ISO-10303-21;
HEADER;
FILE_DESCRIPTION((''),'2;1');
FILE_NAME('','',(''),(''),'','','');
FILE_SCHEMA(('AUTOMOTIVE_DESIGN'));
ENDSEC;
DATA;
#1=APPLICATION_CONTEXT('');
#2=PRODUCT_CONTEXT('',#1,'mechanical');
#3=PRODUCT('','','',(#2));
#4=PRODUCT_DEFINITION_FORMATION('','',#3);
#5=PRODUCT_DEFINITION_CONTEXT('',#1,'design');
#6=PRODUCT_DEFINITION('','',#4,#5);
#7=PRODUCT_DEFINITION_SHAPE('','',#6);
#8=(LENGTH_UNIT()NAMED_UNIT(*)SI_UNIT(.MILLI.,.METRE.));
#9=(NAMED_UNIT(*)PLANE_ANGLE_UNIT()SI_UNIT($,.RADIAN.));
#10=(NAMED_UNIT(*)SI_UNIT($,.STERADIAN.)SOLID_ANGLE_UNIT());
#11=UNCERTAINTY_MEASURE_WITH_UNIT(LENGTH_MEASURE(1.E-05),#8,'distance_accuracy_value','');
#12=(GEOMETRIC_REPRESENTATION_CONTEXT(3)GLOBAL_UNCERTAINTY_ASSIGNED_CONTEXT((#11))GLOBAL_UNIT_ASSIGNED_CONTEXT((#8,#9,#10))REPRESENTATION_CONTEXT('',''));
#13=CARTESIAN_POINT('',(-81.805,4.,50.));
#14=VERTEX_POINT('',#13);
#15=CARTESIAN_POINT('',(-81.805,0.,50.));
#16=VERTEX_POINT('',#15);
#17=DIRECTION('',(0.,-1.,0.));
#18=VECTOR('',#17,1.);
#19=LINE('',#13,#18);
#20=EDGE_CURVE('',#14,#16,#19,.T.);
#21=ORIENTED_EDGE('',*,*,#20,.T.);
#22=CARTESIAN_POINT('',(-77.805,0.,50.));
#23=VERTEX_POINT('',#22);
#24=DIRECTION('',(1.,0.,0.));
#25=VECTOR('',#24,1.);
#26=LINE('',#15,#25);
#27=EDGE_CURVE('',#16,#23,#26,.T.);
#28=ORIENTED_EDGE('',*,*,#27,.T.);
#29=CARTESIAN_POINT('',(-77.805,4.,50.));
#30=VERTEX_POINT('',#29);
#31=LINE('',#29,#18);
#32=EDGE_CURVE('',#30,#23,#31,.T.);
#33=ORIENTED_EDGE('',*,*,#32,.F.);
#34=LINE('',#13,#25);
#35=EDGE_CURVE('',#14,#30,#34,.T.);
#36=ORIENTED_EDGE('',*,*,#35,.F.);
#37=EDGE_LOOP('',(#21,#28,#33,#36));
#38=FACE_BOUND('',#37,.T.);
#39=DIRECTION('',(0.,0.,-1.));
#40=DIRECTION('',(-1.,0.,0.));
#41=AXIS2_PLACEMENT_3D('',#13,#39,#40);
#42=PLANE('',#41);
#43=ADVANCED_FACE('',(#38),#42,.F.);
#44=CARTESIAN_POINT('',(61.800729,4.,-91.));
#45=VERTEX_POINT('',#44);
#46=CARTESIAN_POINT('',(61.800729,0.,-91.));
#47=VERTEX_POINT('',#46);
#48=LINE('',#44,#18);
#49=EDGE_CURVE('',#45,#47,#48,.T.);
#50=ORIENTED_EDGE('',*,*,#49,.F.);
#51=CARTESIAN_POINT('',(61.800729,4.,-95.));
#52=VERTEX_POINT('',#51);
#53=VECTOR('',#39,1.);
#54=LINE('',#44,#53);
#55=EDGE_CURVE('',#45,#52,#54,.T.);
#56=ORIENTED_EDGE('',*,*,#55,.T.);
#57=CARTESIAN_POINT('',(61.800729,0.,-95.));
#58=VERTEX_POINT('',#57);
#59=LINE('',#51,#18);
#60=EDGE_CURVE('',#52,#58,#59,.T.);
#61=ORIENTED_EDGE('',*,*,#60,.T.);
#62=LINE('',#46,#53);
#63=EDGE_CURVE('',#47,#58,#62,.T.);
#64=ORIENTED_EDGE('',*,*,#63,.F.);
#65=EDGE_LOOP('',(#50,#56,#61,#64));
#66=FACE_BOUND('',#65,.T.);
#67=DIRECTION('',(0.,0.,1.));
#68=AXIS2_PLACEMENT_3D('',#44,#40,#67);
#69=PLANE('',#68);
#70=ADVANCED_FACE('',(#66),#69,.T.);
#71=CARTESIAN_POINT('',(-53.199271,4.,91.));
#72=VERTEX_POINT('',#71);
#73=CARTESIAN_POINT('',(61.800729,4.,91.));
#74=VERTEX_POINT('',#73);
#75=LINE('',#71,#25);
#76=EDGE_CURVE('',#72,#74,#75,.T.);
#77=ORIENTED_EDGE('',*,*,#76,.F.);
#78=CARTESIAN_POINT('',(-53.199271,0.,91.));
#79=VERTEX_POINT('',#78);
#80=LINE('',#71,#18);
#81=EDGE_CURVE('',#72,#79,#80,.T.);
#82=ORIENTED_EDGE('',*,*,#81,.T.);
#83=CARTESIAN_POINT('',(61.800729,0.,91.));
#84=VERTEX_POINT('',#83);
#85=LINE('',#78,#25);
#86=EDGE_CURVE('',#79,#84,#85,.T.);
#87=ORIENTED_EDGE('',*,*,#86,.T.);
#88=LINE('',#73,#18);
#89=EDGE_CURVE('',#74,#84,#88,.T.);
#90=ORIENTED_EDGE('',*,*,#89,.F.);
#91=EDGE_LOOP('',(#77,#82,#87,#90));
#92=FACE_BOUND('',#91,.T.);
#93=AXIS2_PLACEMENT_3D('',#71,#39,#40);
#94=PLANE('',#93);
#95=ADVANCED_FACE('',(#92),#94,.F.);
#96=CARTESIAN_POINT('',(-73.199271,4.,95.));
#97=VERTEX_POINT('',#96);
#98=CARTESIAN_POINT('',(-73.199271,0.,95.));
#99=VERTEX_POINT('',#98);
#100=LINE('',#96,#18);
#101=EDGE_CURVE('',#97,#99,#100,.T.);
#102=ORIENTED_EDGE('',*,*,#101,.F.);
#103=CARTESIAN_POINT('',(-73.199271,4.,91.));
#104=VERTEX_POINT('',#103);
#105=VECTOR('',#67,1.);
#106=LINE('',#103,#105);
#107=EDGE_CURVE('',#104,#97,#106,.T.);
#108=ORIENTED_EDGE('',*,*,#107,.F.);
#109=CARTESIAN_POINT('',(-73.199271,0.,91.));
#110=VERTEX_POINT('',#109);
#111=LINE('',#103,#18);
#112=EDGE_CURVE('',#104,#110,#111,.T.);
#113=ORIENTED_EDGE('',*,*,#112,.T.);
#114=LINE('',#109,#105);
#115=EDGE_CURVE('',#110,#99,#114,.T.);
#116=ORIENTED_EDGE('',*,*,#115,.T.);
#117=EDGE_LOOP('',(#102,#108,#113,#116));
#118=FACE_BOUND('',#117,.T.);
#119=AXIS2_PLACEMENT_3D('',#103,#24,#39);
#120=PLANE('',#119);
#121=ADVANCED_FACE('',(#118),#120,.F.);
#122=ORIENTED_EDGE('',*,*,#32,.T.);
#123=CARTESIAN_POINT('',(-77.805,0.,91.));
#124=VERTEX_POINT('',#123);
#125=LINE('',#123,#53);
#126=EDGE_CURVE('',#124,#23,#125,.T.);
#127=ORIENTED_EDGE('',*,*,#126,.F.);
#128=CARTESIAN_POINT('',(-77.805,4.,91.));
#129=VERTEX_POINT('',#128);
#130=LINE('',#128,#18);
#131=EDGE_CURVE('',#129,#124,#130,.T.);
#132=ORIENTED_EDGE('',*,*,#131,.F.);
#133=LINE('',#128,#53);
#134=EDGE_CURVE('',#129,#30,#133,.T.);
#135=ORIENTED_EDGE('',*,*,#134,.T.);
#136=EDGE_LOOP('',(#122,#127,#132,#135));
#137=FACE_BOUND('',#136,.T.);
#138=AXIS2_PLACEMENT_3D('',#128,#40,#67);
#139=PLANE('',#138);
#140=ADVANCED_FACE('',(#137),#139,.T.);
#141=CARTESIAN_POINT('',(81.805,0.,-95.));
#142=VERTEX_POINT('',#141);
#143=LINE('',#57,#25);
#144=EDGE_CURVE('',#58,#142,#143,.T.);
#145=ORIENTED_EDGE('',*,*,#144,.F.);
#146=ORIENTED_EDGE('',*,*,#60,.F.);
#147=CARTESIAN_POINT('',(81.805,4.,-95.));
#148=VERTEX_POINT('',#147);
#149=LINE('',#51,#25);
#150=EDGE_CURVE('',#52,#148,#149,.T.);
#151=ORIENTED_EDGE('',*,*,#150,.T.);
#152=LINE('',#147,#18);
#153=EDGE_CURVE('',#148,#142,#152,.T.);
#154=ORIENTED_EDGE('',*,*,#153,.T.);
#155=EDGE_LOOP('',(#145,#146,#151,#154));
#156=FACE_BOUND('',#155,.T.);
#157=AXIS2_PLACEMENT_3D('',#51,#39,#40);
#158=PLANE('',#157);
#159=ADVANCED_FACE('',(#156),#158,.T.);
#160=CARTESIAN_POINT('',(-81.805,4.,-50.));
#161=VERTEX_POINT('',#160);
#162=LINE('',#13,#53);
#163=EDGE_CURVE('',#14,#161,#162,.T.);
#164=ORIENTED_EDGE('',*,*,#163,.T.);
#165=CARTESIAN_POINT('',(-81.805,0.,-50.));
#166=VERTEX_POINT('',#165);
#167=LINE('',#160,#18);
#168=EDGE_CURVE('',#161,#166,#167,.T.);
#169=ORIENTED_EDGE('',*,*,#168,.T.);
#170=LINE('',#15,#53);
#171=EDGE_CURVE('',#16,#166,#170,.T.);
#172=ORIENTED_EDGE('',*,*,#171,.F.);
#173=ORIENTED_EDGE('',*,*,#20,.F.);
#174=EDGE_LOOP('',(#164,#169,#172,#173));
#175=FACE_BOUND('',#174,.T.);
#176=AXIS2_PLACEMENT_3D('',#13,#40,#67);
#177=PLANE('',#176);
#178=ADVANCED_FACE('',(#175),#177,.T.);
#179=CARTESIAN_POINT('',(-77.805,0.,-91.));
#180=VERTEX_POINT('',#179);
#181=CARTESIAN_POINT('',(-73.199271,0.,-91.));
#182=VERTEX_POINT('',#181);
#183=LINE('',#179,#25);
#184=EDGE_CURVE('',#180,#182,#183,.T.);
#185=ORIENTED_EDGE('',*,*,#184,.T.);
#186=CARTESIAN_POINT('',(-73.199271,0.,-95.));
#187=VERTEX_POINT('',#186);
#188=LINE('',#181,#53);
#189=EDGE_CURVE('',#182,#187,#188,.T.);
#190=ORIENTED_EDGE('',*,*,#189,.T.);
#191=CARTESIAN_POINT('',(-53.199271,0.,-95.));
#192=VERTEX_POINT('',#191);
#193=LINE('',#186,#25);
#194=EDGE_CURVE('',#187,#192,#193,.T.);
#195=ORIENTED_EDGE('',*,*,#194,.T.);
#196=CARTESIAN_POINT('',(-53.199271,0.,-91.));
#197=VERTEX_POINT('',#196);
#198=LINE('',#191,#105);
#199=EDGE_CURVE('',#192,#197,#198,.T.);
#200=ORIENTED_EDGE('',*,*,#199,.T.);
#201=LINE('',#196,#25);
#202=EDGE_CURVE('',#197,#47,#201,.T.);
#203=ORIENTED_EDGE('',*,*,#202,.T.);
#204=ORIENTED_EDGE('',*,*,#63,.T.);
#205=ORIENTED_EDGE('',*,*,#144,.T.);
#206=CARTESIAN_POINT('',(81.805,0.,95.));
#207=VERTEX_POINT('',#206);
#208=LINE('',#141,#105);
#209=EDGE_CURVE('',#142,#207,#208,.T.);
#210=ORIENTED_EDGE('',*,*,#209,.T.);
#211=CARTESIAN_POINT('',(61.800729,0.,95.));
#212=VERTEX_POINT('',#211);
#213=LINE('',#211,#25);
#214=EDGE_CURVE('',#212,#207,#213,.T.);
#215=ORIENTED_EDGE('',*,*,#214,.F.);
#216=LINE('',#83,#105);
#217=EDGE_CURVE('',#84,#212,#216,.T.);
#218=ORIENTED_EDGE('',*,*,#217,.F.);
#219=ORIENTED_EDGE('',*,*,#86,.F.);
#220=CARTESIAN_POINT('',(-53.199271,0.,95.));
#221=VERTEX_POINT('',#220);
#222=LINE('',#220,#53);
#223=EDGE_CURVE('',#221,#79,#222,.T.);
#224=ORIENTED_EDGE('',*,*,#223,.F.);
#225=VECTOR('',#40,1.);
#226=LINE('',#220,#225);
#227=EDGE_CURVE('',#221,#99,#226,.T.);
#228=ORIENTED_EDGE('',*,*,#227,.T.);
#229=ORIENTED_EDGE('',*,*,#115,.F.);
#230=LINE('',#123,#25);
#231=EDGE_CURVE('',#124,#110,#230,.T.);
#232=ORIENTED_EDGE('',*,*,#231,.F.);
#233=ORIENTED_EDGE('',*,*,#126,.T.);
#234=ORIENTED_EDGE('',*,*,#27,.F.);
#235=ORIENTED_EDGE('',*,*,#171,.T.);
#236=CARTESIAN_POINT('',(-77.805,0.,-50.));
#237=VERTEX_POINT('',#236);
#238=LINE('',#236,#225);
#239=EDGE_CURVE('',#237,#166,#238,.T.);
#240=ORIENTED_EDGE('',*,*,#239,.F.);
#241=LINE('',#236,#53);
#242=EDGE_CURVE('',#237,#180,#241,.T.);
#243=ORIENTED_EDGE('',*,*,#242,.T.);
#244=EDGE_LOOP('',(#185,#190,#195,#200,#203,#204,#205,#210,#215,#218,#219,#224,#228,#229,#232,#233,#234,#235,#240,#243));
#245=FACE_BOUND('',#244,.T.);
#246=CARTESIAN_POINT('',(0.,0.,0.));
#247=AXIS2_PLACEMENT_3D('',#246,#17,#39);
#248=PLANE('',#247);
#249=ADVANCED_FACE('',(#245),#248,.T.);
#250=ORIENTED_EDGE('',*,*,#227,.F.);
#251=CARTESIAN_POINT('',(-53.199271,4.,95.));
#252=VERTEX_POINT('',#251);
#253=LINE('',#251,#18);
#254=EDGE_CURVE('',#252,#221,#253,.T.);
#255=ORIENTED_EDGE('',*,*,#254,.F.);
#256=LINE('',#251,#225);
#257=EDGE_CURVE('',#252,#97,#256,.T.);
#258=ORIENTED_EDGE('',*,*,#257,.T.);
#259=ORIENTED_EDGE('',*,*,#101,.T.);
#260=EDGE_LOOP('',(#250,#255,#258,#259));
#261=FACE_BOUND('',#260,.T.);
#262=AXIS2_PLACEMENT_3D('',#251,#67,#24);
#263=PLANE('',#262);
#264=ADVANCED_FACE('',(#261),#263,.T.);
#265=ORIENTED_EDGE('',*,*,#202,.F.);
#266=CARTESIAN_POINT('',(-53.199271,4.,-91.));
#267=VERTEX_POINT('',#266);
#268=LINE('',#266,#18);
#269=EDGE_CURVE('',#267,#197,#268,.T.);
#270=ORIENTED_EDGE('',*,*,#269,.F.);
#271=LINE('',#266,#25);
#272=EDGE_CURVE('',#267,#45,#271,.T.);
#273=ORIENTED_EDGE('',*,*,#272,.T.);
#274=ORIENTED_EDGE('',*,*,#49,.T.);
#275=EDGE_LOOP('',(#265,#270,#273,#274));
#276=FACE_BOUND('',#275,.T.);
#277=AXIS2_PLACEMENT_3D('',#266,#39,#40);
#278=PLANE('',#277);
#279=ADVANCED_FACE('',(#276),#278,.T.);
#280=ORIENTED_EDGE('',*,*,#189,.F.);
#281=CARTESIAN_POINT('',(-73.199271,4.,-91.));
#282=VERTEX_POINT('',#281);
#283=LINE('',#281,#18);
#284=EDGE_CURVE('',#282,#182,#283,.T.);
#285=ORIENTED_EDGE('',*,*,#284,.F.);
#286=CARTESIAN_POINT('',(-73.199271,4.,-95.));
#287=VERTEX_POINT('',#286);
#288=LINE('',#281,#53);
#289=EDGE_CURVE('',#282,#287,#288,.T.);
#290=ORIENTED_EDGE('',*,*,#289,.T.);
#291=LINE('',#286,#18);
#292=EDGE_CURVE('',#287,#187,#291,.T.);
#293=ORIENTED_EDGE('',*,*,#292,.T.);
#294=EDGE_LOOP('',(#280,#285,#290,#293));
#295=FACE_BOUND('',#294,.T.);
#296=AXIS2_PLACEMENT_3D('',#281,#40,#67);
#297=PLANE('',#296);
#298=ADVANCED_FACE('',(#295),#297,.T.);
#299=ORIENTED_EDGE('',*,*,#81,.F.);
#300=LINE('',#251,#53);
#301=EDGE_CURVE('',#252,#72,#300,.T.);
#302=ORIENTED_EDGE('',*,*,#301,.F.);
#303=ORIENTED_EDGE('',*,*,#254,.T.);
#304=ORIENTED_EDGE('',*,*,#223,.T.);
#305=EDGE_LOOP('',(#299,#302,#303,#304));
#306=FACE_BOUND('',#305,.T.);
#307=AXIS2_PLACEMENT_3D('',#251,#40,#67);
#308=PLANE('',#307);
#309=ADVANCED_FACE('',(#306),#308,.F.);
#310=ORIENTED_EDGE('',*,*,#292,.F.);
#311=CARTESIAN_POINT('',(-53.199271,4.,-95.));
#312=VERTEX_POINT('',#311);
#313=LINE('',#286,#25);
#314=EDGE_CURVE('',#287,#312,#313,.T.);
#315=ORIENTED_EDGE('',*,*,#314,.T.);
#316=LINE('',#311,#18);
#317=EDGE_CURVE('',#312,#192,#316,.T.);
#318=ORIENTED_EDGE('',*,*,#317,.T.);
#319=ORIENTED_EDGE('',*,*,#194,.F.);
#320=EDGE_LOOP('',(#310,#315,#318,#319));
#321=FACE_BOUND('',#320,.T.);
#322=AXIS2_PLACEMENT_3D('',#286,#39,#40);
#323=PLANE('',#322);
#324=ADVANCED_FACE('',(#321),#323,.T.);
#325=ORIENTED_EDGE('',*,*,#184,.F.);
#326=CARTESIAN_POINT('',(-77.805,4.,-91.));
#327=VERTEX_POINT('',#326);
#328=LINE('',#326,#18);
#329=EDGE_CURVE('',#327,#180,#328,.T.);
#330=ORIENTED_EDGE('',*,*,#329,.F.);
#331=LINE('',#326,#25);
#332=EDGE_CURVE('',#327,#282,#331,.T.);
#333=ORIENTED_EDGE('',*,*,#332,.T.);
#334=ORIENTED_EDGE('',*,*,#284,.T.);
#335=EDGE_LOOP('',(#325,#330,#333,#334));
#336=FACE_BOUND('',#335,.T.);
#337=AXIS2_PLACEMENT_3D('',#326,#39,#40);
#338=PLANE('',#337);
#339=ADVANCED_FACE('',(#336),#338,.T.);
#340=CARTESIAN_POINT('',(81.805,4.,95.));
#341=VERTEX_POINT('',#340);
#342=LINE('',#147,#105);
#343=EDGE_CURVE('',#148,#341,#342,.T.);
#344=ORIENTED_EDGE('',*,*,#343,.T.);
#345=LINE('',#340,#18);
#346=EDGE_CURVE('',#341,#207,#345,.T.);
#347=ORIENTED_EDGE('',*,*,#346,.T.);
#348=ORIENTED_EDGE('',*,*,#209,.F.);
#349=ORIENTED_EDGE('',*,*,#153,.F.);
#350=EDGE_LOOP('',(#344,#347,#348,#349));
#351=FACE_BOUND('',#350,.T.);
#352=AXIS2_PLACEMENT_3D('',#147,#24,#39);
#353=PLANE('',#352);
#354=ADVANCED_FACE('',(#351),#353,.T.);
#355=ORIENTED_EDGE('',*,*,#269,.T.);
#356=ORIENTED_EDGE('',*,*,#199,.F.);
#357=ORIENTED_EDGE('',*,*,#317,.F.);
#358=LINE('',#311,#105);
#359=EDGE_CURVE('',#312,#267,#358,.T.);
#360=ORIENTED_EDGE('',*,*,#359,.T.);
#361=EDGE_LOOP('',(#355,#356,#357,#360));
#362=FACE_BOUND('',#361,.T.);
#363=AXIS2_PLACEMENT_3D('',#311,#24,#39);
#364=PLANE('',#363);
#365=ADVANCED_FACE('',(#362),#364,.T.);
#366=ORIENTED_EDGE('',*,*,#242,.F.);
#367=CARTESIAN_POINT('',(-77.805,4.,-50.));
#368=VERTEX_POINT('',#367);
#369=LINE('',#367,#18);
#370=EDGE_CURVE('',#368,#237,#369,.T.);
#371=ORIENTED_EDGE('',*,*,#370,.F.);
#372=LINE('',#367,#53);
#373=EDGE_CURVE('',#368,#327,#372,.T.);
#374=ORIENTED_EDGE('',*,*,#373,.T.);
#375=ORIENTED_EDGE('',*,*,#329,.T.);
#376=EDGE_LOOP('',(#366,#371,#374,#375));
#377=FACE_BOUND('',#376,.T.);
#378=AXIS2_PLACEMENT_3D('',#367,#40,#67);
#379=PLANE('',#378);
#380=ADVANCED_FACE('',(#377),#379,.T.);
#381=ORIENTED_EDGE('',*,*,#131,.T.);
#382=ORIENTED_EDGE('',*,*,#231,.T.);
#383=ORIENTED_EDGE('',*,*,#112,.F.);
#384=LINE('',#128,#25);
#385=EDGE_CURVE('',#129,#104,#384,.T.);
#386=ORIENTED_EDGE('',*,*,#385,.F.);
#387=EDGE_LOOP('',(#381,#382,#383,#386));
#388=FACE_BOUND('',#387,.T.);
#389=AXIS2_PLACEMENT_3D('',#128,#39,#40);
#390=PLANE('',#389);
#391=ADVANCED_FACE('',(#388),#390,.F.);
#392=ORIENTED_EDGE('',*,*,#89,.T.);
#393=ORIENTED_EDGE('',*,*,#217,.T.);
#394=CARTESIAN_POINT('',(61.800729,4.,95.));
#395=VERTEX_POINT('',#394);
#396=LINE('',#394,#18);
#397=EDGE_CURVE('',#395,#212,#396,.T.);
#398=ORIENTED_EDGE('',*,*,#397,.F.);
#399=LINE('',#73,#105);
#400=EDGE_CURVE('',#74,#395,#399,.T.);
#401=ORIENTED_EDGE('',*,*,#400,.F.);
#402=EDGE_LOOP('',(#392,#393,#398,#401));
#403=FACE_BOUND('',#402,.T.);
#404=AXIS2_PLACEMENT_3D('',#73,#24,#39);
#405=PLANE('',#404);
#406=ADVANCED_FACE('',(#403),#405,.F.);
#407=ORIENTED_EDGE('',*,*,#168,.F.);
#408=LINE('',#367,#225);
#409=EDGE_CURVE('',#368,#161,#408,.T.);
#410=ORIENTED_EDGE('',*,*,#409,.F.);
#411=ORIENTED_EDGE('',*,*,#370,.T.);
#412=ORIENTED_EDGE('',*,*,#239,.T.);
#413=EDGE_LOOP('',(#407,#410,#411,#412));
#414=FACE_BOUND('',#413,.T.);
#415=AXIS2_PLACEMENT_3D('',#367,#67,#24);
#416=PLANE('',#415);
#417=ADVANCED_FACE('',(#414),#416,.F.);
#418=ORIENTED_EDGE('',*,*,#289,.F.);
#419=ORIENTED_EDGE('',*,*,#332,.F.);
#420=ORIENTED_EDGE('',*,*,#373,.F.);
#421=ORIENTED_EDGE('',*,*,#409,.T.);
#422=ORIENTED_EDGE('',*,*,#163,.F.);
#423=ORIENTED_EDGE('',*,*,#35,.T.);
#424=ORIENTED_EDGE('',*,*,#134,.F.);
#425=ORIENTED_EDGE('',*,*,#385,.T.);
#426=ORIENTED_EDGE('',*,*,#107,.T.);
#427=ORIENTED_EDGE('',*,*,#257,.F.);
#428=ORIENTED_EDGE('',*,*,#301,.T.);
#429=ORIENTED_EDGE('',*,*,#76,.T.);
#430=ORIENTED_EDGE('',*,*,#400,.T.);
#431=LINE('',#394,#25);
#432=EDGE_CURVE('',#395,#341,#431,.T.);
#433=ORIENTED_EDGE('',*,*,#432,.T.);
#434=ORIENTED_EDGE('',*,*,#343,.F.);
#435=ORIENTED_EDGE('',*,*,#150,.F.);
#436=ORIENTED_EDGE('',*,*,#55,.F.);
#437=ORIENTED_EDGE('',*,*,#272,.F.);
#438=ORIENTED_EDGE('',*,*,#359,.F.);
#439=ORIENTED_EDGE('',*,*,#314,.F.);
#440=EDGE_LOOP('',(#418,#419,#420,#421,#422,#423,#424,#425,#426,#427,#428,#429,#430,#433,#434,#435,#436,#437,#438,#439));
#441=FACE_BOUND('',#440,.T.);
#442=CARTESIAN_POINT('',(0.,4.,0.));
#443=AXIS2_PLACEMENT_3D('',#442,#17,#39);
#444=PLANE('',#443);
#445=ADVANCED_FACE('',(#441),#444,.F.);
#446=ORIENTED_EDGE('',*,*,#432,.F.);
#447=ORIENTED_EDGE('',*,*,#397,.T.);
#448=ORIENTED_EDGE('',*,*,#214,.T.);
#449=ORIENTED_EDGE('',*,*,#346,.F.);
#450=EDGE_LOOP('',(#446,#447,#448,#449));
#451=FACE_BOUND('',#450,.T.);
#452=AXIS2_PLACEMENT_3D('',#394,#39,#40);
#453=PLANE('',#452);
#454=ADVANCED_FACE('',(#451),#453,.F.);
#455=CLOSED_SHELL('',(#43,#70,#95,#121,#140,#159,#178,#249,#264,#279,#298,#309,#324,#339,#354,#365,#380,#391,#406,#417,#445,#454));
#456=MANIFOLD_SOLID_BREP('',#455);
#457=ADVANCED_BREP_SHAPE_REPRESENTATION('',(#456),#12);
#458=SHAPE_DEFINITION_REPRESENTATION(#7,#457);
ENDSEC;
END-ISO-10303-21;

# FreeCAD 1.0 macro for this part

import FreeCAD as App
import Part
import Sketcher
Q = App.Units.Quantity

doc = App.newDocument("Part")
params = doc.addObject("Spreadsheet::Sheet", "Params")
for row, (alias, value) in enumerate([
    ("sketch1_width", "20 mm"),
    ("sketch1_width2", "115 mm"),
    ("sketch1_width3", "4 mm"),
    ("sketch1_height", "190 mm"),
    ("sketch1_height2", "41 mm"),
    ("pad1_length", "4 mm"),
], start=1):
    params.set(f"A{row}", alias)
    params.set(f"B{row}", "=" + value)
    params.setAlias(f"B{row}", alias)

body = doc.addObject("PartDesign::Body", "Body")

# Sketch on XZ plane
sketch1 = doc.addObject("Sketcher::SketchObject", "Sketch")
body.addObject(sketch1)
sketch1.AttachmentSupport = (doc.XZ_Plane, [""])
sketch1.MapMode = "FlatFace"
sketch1.addGeometry([
    Part.LineSegment(App.Vector(-77.8, 91, 0), App.Vector(-73.2, 91, 0)),  # 0
    Part.LineSegment(App.Vector(-73.2, 91, 0), App.Vector(-73.2, 95, 0)),  # 1
    Part.LineSegment(App.Vector(-73.2, 95, 0), App.Vector(-53.2, 95, 0)),  # 2
    Part.LineSegment(App.Vector(-53.2, 95, 0), App.Vector(-53.2, 91, 0)),  # 3
    Part.LineSegment(App.Vector(-53.2, 91, 0), App.Vector(61.8, 91, 0)),  # 4
    Part.LineSegment(App.Vector(61.8, 91, 0), App.Vector(61.8, 95, 0)),  # 5
    Part.LineSegment(App.Vector(61.8, 95, 0), App.Vector(81.8, 95, 0)),  # 6
    Part.LineSegment(App.Vector(81.8, 95, 0), App.Vector(81.8, -95, 0)),  # 7
    Part.LineSegment(App.Vector(81.8, -95, 0), App.Vector(61.8, -95, 0)),  # 8
    Part.LineSegment(App.Vector(61.8, -95, 0), App.Vector(61.8, -91, 0)),  # 9
    Part.LineSegment(App.Vector(61.8, -91, 0), App.Vector(-53.2, -91, 0)),  # 10
    Part.LineSegment(App.Vector(-53.2, -91, 0), App.Vector(-53.2, -95, 0)),  # 11
    Part.LineSegment(App.Vector(-53.2, -95, 0), App.Vector(-73.2, -95, 0)),  # 12
    Part.LineSegment(App.Vector(-73.2, -95, 0), App.Vector(-73.2, -91, 0)),  # 13
    Part.LineSegment(App.Vector(-73.2, -91, 0), App.Vector(-77.8, -91, 0)),  # 14
    Part.LineSegment(App.Vector(-77.8, -91, 0), App.Vector(-77.8, -50, 0)),  # 15
    Part.LineSegment(App.Vector(-77.8, -50, 0), App.Vector(-81.8, -50, 0)),  # 16
    Part.LineSegment(App.Vector(-81.8, -50, 0), App.Vector(-81.8, 50, 0)),  # 17
    Part.LineSegment(App.Vector(-81.8, 50, 0), App.Vector(-77.8, 50, 0)),  # 18
    Part.LineSegment(App.Vector(-77.8, 50, 0), App.Vector(-77.8, 91, 0)),  # 19
], False)
sketch1.addConstraint([
    Sketcher.Constraint("Coincident", 0, 2, 1, 1),
    Sketcher.Constraint("Coincident", 1, 2, 2, 1),
    Sketcher.Constraint("Coincident", 2, 2, 3, 1),
    Sketcher.Constraint("Coincident", 3, 2, 4, 1),
    Sketcher.Constraint("Coincident", 4, 2, 5, 1),
    Sketcher.Constraint("Coincident", 5, 2, 6, 1),
    Sketcher.Constraint("Coincident", 6, 2, 7, 1),
    Sketcher.Constraint("Coincident", 7, 2, 8, 1),
    Sketcher.Constraint("Coincident", 8, 2, 9, 1),
    Sketcher.Constraint("Coincident", 9, 2, 10, 1),
    Sketcher.Constraint("Coincident", 10, 2, 11, 1),
    Sketcher.Constraint("Coincident", 11, 2, 12, 1),
    Sketcher.Constraint("Coincident", 12, 2, 13, 1),
    Sketcher.Constraint("Coincident", 13, 2, 14, 1),
    Sketcher.Constraint("Coincident", 14, 2, 15, 1),
    Sketcher.Constraint("Coincident", 15, 2, 16, 1),
    Sketcher.Constraint("Coincident", 16, 2, 17, 1),
    Sketcher.Constraint("Coincident", 17, 2, 18, 1),
    Sketcher.Constraint("Coincident", 18, 2, 19, 1),
    Sketcher.Constraint("Coincident", 19, 2, 0, 1),
    Sketcher.Constraint("Horizontal", 0),
    Sketcher.Constraint("Vertical", 1),
    Sketcher.Constraint("Horizontal", 2),
    Sketcher.Constraint("Vertical", 3),
    Sketcher.Constraint("Horizontal", 4),
    Sketcher.Constraint("Vertical", 5),
    Sketcher.Constraint("Horizontal", 6),
    Sketcher.Constraint("Vertical", 7),
    Sketcher.Constraint("Horizontal", 8),
    Sketcher.Constraint("Vertical", 9),
    Sketcher.Constraint("Horizontal", 10),
    Sketcher.Constraint("Vertical", 11),
    Sketcher.Constraint("Horizontal", 12),
    Sketcher.Constraint("Vertical", 13),
    Sketcher.Constraint("Horizontal", 14),
    Sketcher.Constraint("Vertical", 15),
    Sketcher.Constraint("Horizontal", 16),
    Sketcher.Constraint("Vertical", 17),
    Sketcher.Constraint("Horizontal", 18),
    Sketcher.Constraint("Vertical", 19),
    Sketcher.Constraint("Symmetric", 5, 2, 8, 2, -1),
    Sketcher.Constraint("Symmetric", 3, 2, 10, 2, -1),
    Sketcher.Constraint("Symmetric", 1, 2, 12, 2, -1),
    Sketcher.Constraint("Symmetric", 15, 2, 18, 2, -1),
    Sketcher.Constraint("Horizontal", 0, 2, 3, 2),
    Sketcher.Constraint("Horizontal", 2, 2, 5, 2),
    Sketcher.Constraint("Horizontal", 10, 2, 13, 2),
    Sketcher.Constraint("Equal", 18, 1),
    Sketcher.Constraint("DistanceX", 2, 1, 2, 2, Q("20 mm")),
    Sketcher.Constraint("DistanceX", 4, 1, 4, 2, Q("115 mm")),
    Sketcher.Constraint("DistanceX", 16, 2, 16, 1, Q("4 mm")),
    Sketcher.Constraint("DistanceY", 7, 2, 7, 1, Q("190 mm")),
    Sketcher.Constraint("DistanceY", 15, 1, 15, 2, Q("41 mm")),
    Sketcher.Constraint("DistanceX", -1, 1, 6, 2, Q("81.805 mm")),
    Sketcher.Constraint("DistanceX", 14, 2, -1, 1, Q("77.805 mm")),
    Sketcher.Constraint("DistanceX", 0, 1, 0, 2, Q("4.605729 mm")),
])
sketch1.setExpression("Constraints[48]", "Params.sketch1_width")
sketch1.setExpression("Constraints[49]", "Params.sketch1_width2")
sketch1.setExpression("Constraints[50]", "Params.sketch1_width3")
sketch1.setExpression("Constraints[51]", "Params.sketch1_height")
sketch1.setExpression("Constraints[52]", "Params.sketch1_height2")
pad1 = doc.addObject("PartDesign::Pad", "Pad")
body.addObject(pad1)
pad1.Profile = sketch1
pad1.setExpression("Length", "Params.pad1_length")
pad1.Reversed = True

doc.recompute()
